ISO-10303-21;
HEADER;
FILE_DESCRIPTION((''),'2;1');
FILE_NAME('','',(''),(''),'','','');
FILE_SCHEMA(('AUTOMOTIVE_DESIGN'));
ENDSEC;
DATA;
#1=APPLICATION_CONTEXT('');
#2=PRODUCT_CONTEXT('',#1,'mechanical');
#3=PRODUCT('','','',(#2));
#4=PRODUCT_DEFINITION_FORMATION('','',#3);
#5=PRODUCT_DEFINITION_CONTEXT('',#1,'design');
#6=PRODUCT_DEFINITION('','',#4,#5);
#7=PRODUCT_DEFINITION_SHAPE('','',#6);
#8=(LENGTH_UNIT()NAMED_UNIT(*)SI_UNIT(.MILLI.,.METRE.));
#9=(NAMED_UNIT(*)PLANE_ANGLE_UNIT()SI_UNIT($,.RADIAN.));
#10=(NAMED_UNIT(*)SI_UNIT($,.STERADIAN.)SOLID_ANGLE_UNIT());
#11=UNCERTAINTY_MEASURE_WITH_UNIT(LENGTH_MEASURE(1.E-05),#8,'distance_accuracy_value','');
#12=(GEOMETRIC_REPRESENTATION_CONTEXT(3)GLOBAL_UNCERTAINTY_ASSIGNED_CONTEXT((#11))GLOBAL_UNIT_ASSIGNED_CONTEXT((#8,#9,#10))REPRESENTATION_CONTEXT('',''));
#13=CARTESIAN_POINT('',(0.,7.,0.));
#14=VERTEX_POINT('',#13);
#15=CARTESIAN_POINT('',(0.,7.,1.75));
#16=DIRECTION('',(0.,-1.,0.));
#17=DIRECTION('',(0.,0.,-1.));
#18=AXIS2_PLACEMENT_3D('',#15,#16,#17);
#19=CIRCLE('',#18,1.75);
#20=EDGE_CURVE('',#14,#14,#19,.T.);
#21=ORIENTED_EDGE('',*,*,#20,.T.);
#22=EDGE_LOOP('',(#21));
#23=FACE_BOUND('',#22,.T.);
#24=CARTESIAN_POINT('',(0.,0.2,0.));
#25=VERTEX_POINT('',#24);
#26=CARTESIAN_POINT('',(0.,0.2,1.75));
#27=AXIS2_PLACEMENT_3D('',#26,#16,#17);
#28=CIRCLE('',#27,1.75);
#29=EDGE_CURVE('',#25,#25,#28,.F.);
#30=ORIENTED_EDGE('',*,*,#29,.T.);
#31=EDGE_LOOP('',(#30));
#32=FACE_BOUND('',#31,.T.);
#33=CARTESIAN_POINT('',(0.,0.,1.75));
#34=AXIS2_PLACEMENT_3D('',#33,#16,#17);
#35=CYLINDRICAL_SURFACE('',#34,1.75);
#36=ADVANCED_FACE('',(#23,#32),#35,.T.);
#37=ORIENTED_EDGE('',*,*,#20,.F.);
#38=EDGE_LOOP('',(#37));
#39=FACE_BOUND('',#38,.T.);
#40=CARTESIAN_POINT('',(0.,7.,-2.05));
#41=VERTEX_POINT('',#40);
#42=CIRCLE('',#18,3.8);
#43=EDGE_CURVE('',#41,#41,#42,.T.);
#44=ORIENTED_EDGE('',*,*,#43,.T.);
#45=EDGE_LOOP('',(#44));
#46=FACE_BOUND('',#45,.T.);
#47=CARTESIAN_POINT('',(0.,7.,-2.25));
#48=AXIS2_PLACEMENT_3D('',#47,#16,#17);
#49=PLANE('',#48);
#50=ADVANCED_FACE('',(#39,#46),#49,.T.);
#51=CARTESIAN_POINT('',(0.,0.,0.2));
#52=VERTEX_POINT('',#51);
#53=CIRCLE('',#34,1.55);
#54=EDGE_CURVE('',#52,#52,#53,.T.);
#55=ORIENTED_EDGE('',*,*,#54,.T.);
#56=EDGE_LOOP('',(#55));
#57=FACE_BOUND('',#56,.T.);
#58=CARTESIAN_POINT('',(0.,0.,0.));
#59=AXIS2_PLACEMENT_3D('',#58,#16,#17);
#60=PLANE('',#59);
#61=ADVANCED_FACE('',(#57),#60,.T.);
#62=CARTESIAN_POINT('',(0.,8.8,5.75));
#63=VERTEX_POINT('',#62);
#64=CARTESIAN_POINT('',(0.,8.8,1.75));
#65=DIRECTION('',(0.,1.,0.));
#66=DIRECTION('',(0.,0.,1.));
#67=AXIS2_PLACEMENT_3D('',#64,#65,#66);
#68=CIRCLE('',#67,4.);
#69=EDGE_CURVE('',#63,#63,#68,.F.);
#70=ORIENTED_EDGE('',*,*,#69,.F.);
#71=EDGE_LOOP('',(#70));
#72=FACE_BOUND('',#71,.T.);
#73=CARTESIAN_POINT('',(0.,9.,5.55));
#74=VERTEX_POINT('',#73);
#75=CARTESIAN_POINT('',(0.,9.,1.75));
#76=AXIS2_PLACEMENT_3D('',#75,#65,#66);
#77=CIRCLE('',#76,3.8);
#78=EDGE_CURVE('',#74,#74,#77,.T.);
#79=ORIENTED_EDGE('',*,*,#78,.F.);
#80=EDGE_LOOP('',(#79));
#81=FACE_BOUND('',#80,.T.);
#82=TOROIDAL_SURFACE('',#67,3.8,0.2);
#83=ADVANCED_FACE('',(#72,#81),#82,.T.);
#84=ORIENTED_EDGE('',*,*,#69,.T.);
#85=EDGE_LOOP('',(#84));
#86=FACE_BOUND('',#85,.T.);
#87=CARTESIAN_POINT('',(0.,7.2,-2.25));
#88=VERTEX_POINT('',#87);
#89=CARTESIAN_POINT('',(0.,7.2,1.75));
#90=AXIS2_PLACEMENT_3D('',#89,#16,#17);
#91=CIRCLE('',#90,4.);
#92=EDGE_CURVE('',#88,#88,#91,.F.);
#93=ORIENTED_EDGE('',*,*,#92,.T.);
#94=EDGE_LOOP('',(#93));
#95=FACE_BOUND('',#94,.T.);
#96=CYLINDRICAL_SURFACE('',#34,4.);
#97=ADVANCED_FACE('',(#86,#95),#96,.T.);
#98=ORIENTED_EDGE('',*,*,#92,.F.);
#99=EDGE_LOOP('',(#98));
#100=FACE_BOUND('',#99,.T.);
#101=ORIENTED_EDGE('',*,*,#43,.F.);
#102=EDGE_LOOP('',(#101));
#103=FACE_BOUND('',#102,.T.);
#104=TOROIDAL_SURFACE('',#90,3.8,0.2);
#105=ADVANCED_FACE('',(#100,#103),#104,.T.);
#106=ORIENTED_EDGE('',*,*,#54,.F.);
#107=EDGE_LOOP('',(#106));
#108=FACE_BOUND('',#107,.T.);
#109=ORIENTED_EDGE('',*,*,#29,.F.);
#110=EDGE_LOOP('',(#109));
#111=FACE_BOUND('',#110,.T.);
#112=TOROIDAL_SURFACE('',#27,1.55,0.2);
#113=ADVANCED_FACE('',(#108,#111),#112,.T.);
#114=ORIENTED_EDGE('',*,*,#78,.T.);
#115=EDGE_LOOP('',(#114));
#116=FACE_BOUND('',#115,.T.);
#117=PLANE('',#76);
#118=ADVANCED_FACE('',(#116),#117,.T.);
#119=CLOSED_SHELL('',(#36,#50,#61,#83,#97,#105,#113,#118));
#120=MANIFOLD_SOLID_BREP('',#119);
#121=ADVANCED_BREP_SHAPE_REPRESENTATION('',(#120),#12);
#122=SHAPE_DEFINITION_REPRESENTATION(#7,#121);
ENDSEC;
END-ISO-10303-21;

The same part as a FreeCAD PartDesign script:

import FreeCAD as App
import Part
import Sketcher

V = App.Vector


def edges_at(feature, points):
    """Names of the edges that pass closest to the given points."""
    edges = feature.Shape.Edges
    near = lambda p: min(range(len(edges)), key=lambda i: edges[i].distToShape(Part.Vertex(*p))[0])
    return sorted({f"Edge{near(p) + 1}" for p in points})

doc = App.newDocument("Part")
body = doc.addObject("PartDesign::Body", "Body")

sketch1 = doc.addObject("Sketcher::SketchObject", "Sketch")
body.addObject(sketch1)
sketch1.AttachmentSupport = (doc.YZ_Plane, [""])
sketch1.MapMode = "FlatFace"
sketch1.addGeometry(Part.LineSegment(V(0, 1.75, 0), V(0, 0, 0)), False)
sketch1.addGeometry(Part.LineSegment(V(0, 0, 0), V(7, 0, 0)), False)
sketch1.addGeometry(Part.LineSegment(V(7, 0, 0), V(7, -2.25, 0)), False)
sketch1.addGeometry(Part.LineSegment(V(7, -2.25, 0), V(9, -2.25, 0)), False)
sketch1.addGeometry(Part.LineSegment(V(9, -2.25, 0), V(9, 1.75, 0)), False)
sketch1.addGeometry(Part.LineSegment(V(9, 1.75, 0), V(0, 1.75, 0)), False)
sketch1.addGeometry(Part.LineSegment(V(0, 1.75, 0), V(9, 1.75, 0)), True)
sketch1.addConstraint(Sketcher.Constraint("Coincident", 0, 2, 1, 1))
sketch1.addConstraint(Sketcher.Constraint("Coincident", 1, 2, 2, 1))
sketch1.addConstraint(Sketcher.Constraint("Coincident", 2, 2, 3, 1))
sketch1.addConstraint(Sketcher.Constraint("Coincident", 3, 2, 4, 1))
sketch1.addConstraint(Sketcher.Constraint("Coincident", 4, 2, 5, 1))
sketch1.addConstraint(Sketcher.Constraint("Coincident", 5, 2, 0, 1))
sketch1.addConstraint(Sketcher.Constraint("Vertical", 0))
sketch1.addConstraint(Sketcher.Constraint("Horizontal", 1))
sketch1.addConstraint(Sketcher.Constraint("Vertical", 2))
sketch1.addConstraint(Sketcher.Constraint("Horizontal", 3))
sketch1.addConstraint(Sketcher.Constraint("Vertical", 4))
sketch1.addConstraint(Sketcher.Constraint("Horizontal", 5))
sketch1.addConstraint(Sketcher.Constraint("Horizontal", 6))
sketch1.addConstraint(Sketcher.Constraint("Coincident", 0, 2, -1, 1))
sketch1.addConstraint(Sketcher.Constraint("Coincident", 6, 1, 5, 2))
sketch1.addConstraint(Sketcher.Constraint("Vertical", 3, 2, 6, 2))
sketch1.addConstraint(Sketcher.Constraint("DistanceX", 1, 1, 1, 2, 7.0))
sketch1.addConstraint(Sketcher.Constraint("DistanceX", 3, 1, 3, 2, 2.0))
sketch1.addConstraint(Sketcher.Constraint("DistanceY", 4, 1, 4, 2, 4.0))
sketch1.addConstraint(Sketcher.Constraint("DistanceY", 0, 2, 0, 1, 1.75))
revolution = doc.addObject("PartDesign::Revolution", "Revolution")
body.addObject(revolution)
revolution.Profile = sketch1
revolution.ReferenceAxis = (sketch1, ["Axis0"])
revolution.Angle = 360
doc.recompute()

fillet = doc.addObject("PartDesign::Fillet", "Fillet")
body.addObject(fillet)
fillet.Base = (revolution, edges_at(revolution, [(0, 7, 5.75), (0, 9, 5.75), (0, 0, 3.5)]))
fillet.Radius = 0.2

doc.recompute()
